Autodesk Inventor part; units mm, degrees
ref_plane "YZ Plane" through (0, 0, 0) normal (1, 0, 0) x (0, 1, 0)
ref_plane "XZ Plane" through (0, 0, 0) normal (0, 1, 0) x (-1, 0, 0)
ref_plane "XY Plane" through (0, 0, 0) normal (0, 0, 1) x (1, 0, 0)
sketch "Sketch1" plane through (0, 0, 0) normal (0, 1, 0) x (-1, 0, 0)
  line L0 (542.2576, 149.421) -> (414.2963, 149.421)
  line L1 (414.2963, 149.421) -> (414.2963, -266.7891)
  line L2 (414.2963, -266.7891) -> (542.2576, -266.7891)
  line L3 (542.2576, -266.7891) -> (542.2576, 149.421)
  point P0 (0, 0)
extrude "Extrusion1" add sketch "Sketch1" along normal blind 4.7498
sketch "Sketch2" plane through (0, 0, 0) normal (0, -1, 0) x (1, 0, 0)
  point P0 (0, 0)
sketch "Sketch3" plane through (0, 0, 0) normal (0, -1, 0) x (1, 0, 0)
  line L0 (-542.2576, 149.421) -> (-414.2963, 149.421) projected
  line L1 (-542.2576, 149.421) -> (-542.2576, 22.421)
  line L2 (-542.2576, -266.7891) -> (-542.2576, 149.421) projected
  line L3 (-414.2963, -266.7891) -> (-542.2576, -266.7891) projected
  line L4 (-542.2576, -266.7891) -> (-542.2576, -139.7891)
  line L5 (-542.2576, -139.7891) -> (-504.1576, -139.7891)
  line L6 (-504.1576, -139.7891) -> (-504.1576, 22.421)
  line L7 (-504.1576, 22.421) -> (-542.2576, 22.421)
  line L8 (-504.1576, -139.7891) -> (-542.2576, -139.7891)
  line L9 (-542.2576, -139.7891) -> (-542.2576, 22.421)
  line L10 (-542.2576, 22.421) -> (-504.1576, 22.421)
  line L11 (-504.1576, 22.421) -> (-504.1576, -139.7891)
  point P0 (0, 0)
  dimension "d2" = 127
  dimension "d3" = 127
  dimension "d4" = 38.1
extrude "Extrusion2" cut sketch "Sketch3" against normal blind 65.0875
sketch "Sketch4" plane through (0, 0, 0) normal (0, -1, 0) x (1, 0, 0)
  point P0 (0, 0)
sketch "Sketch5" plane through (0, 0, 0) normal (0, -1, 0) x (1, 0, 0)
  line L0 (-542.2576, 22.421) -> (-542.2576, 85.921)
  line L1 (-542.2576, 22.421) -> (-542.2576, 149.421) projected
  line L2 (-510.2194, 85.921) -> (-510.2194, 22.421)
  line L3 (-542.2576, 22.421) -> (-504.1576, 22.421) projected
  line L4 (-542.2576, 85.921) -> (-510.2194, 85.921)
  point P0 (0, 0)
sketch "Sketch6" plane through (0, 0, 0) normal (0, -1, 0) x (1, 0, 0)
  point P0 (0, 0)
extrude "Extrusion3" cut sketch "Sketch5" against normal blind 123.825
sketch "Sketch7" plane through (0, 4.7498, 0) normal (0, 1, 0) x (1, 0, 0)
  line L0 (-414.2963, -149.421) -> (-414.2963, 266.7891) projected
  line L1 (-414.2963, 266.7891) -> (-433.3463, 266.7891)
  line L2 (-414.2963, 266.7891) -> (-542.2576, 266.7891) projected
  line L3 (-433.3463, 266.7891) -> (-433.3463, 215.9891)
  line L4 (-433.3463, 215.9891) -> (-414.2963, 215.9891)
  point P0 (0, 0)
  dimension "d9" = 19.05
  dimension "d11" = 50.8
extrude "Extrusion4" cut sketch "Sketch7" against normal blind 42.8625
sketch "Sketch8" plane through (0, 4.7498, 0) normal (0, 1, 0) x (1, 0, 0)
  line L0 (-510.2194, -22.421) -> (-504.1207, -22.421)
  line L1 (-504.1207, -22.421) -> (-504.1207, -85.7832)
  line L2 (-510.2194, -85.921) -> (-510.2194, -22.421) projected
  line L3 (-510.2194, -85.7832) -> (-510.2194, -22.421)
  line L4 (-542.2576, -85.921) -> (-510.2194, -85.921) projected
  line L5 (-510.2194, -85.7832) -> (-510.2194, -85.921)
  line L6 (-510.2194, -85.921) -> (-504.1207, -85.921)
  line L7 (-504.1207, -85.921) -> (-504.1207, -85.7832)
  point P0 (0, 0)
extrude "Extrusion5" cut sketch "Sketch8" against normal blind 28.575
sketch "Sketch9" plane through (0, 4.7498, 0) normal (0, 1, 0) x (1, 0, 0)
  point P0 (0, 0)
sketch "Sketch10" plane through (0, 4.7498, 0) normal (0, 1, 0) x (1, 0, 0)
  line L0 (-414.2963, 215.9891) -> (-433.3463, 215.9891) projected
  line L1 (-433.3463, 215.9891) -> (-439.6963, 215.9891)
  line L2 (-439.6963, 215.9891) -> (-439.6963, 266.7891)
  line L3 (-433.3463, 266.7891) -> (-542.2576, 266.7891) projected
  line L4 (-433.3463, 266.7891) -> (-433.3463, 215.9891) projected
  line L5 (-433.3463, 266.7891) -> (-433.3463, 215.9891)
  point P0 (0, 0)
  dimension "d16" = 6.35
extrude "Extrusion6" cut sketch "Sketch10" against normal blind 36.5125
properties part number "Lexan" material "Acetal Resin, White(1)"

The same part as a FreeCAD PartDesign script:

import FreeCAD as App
import Part
import Sketcher
Q = App.Units.Quantity

doc = App.newDocument("Part")
body = doc.addObject("PartDesign::Body", "Body")

# Sketch on XZ plane
sketch1 = body.newObject("Sketcher::SketchObject", "Sketch")
sketch1.AttachmentSupport = (doc.getObject("XZ_Plane"), [""])
sketch1.MapMode = "FlatFace"
sketch1.addGeometry(Part.LineSegment(App.Vector(-542.2576, -266.7891, 0), App.Vector(-542.2576, 149.421, 0)), False)
sketch1.addGeometry(Part.LineSegment(App.Vector(-542.2576, 149.421, 0), App.Vector(-414.2963, 149.421, 0)), False)
sketch1.addGeometry(Part.LineSegment(App.Vector(-414.2963, 149.421, 0), App.Vector(-414.2963, -266.7891, 0)), False)
sketch1.addGeometry(Part.LineSegment(App.Vector(-414.2963, -266.7891, 0), App.Vector(-542.2576, -266.7891, 0)), False)
sketch1.addConstraint(Sketcher.Constraint("Coincident", 0, 2, 1, 1))
sketch1.addConstraint(Sketcher.Constraint("Coincident", 1, 2, 2, 1))
sketch1.addConstraint(Sketcher.Constraint("Coincident", 2, 2, 3, 1))
sketch1.addConstraint(Sketcher.Constraint("Coincident", 3, 2, 0, 1))
sketch1.addConstraint(Sketcher.Constraint("Vertical", 0))
sketch1.addConstraint(Sketcher.Constraint("Horizontal", 1))
sketch1.addConstraint(Sketcher.Constraint("Vertical", 2))
sketch1.addConstraint(Sketcher.Constraint("Horizontal", 3))
sketch1.addConstraint(Sketcher.Constraint("DistanceX", 1, 1, 1, 2, 127.9613))
sketch1.addConstraint(Sketcher.Constraint("DistanceY", 0, 1, 0, 2, 416.21))
sketch1.addConstraint(Sketcher.Constraint("DistanceY", 2, 2, -1, 1, Q("10.5035 in")))
sketch1.addConstraint(Sketcher.Constraint("DistanceX", 0, 2, -1, 1, 542.2576))
pad1 = body.newObject("PartDesign::Pad", "Pad")
pad1.Profile = sketch1
pad1.Length = Q("0.187 in")
pad1.Reversed = True

# Sketch on XZ plane
sketch2 = body.newObject("Sketcher::SketchObject", "Sketch001")
sketch2.AttachmentSupport = (doc.getObject("XZ_Plane"), [""])
sketch2.MapMode = "FlatFace"
sketch2.addGeometry(Part.LineSegment(App.Vector(-542.2576, 22.421, 0), App.Vector(-542.2576, -139.7891, 0)), False)
sketch2.addGeometry(Part.LineSegment(App.Vector(-542.2576, -139.7891, 0), App.Vector(-504.1576, -139.7891, 0)), False)
sketch2.addGeometry(Part.LineSegment(App.Vector(-504.1576, -139.7891, 0), App.Vector(-504.1576, 22.421, 0)), False)
sketch2.addGeometry(Part.LineSegment(App.Vector(-504.1576, 22.421, 0), App.Vector(-542.2576, 22.421, 0)), False)
sketch2.addConstraint(Sketcher.Constraint("Coincident", 0, 2, 1, 1))
sketch2.addConstraint(Sketcher.Constraint("Coincident", 1, 2, 2, 1))
sketch2.addConstraint(Sketcher.Constraint("Coincident", 2, 2, 3, 1))
sketch2.addConstraint(Sketcher.Constraint("Coincident", 3, 2, 0, 1))
sketch2.addConstraint(Sketcher.Constraint("Vertical", 0))
sketch2.addConstraint(Sketcher.Constraint("Horizontal", 1))
sketch2.addConstraint(Sketcher.Constraint("Vertical", 2))
sketch2.addConstraint(Sketcher.Constraint("Horizontal", 3))
sketch2.addConstraint(Sketcher.Constraint("DistanceX", 1, 1, 1, 2, Q("1.5 in")))
sketch2.addConstraint(Sketcher.Constraint("DistanceY", 0, 2, 0, 1, 162.21))
sketch2.addConstraint(Sketcher.Constraint("DistanceY", 0, 2, -1, 1, Q("5.5035 in")))
sketch2.addConstraint(Sketcher.Constraint("DistanceX", 0, 2, -1, 1, 542.2576))
pocket1 = body.newObject("PartDesign::Pocket", "Pocket")
pocket1.Profile = sketch2
pocket1.Length = Q("2.5625 in")

# Sketch on XZ plane
sketch3 = body.newObject("Sketcher::SketchObject", "Sketch002")
sketch3.AttachmentSupport = (doc.getObject("XZ_Plane"), [""])
sketch3.MapMode = "FlatFace"
sketch3.addGeometry(Part.LineSegment(App.Vector(-542.2576, 85.921, 0), App.Vector(-542.2576, 22.421, 0)), False)
sketch3.addGeometry(Part.LineSegment(App.Vector(-542.2576, 22.421, 0), App.Vector(-510.2194, 22.421, 0)), False)
sketch3.addGeometry(Part.LineSegment(App.Vector(-510.2194, 22.421, 0), App.Vector(-510.2194, 85.921, 0)), False)
sketch3.addGeometry(Part.LineSegment(App.Vector(-510.2194, 85.921, 0), App.Vector(-542.2576, 85.921, 0)), False)
sketch3.addConstraint(Sketcher.Constraint("Coincident", 0, 2, 1, 1))
sketch3.addConstraint(Sketcher.Constraint("Coincident", 1, 2, 2, 1))
sketch3.addConstraint(Sketcher.Constraint("Coincident", 2, 2, 3, 1))
sketch3.addConstraint(Sketcher.Constraint("Coincident", 3, 2, 0, 1))
sketch3.addConstraint(Sketcher.Constraint("Vertical", 0))
sketch3.addConstraint(Sketcher.Constraint("Horizontal", 1))
sketch3.addConstraint(Sketcher.Constraint("Vertical", 2))
sketch3.addConstraint(Sketcher.Constraint("Horizontal", 3))
sketch3.addConstraint(Sketcher.Constraint("DistanceY", 0, 2, 0, 1, Q("2.5 in")))
sketch3.addConstraint(Sketcher.Constraint("DistanceX", 1, 1, 1, 2, 32.0382))
sketch3.addConstraint(Sketcher.Constraint("DistanceX", 0, 2, -1, 1, 542.2576))
sketch3.addConstraint(Sketcher.Constraint("DistanceY", -1, 1, 0, 2, 22.421))
pocket2 = body.newObject("PartDesign::Pocket", "Pocket001")
pocket2.Profile = sketch3
pocket2.Length = Q("4.875 in")

# Sketch on XZ plane
sketch4 = body.newObject("Sketcher::SketchObject", "Sketch003")
sketch4.AttachmentSupport = (doc.getObject("XZ_Plane"), [""])
sketch4.MapMode = "FlatFace"
sketch4.AttachmentOffset = App.Placement(App.Vector(0, 0, -0.187 * 25.4), App.Rotation())
sketch4.addGeometry(Part.LineSegment(App.Vector(-433.3463, -215.9891, 0), App.Vector(-414.2963, -215.9891, 0)), False)
sketch4.addGeometry(Part.LineSegment(App.Vector(-414.2963, -215.9891, 0), App.Vector(-414.2963, -266.7891, 0)), False)
sketch4.addGeometry(Part.LineSegment(App.Vector(-414.2963, -266.7891, 0), App.Vector(-433.3463, -266.7891, 0)), False)
sketch4.addGeometry(Part.LineSegment(App.Vector(-433.3463, -266.7891, 0), App.Vector(-433.3463, -215.9891, 0)), False)
sketch4.addConstraint(Sketcher.Constraint("Coincident", 0, 2, 1, 1))
sketch4.addConstraint(Sketcher.Constraint("Coincident", 1, 2, 2, 1))
sketch4.addConstraint(Sketcher.Constraint("Coincident", 2, 2, 3, 1))
sketch4.addConstraint(Sketcher.Constraint("Coincident", 3, 2, 0, 1))
sketch4.addConstraint(Sketcher.Constraint("Horizontal", 0))
sketch4.addConstraint(Sketcher.Constraint("Vertical", 1))
sketch4.addConstraint(Sketcher.Constraint("Horizontal", 2))
sketch4.addConstraint(Sketcher.Constraint("Vertical", 3))
sketch4.addConstraint(Sketcher.Constraint("DistanceY", 1, 2, 1, 1, Q("2 in")))
sketch4.addConstraint(Sketcher.Constraint("DistanceX", 0, 1, 0, 2, Q("0.75 in")))
sketch4.addConstraint(Sketcher.Constraint("DistanceY", 0, 2, -1, 1, Q("8.5035 in")))
sketch4.addConstraint(Sketcher.Constraint("DistanceX", 0, 2, -1, 1, 414.2963))
pocket3 = body.newObject("PartDesign::Pocket", "Pocket002")
pocket3.Profile = sketch4
pocket3.Length = Q("1.6875 in")
pocket3.Reversed = True

# Sketch on XZ plane
sketch5 = body.newObject("Sketcher::SketchObject", "Sketch004")
sketch5.AttachmentSupport = (doc.getObject("XZ_Plane"), [""])
sketch5.MapMode = "FlatFace"
sketch5.AttachmentOffset = App.Placement(App.Vector(0, 0, -0.187 * 25.4), App.Rotation())
sketch5.addGeometry(Part.LineSegment(App.Vector(-504.1207, 22.421, 0), App.Vector(-510.2194, 22.421, 0)), False)
sketch5.addGeometry(Part.LineSegment(App.Vector(-510.2194, 22.421, 0), App.Vector(-510.2194, 85.921, 0)), False)
sketch5.addGeometry(Part.LineSegment(App.Vector(-510.2194, 85.921, 0), App.Vector(-504.1207, 85.921, 0)), False)
sketch5.addGeometry(Part.LineSegment(App.Vector(-504.1207, 85.921, 0), App.Vector(-504.1207, 22.421, 0)), False)
sketch5.addConstraint(Sketcher.Constraint("Coincident", 0, 2, 1, 1))
sketch5.addConstraint(Sketcher.Constraint("Coincident", 1, 2, 2, 1))
sketch5.addConstraint(Sketcher.Constraint("Coincident", 2, 2, 3, 1))
sketch5.addConstraint(Sketcher.Constraint("Coincident", 3, 2, 0, 1))
sketch5.addConstraint(Sketcher.Constraint("Horizontal", 0))
sketch5.addConstraint(Sketcher.Constraint("Vertical", 1))
sketch5.addConstraint(Sketcher.Constraint("Horizontal", 2))
sketch5.addConstraint(Sketcher.Constraint("Vertical", 3))
sketch5.addConstraint(Sketcher.Constraint("DistanceY", 1, 1, 1, 2, Q("2.5 in")))
sketch5.addConstraint(Sketcher.Constraint("DistanceX", 0, 2, 0, 1, Q("0.2401 in")))
sketch5.addConstraint(Sketcher.Constraint("DistanceX", 0, 2, -1, 1, 510.2194))
sketch5.addConstraint(Sketcher.Constraint("DistanceY", -1, 1, 0, 2, 22.421))
pocket4 = body.newObject("PartDesign::Pocket", "Pocket003")
pocket4.Profile = sketch5
pocket4.Length = Q("1.125 in")
pocket4.Reversed = True

# Sketch on XZ plane
sketch6 = body.newObject("Sketcher::SketchObject", "Sketch005")
sketch6.AttachmentSupport = (doc.getObject("XZ_Plane"), [""])
sketch6.MapMode = "FlatFace"
sketch6.AttachmentOffset = App.Placement(App.Vector(0, 0, -0.187 * 25.4), App.Rotation())
sketch6.addGeometry(Part.LineSegment(App.Vector(-439.6963, -215.9891, 0), App.Vector(-433.3463, -215.9891, 0)), False)
sketch6.addGeometry(Part.LineSegment(App.Vector(-433.3463, -215.9891, 0), App.Vector(-433.3463, -266.7891, 0)), False)
sketch6.addGeometry(Part.LineSegment(App.Vector(-433.3463, -266.7891, 0), App.Vector(-439.6963, -266.7891, 0)), False)
sketch6.addGeometry(Part.LineSegment(App.Vector(-439.6963, -266.7891, 0), App.Vector(-439.6963, -215.9891, 0)), False)
sketch6.addConstraint(Sketcher.Constraint("Coincident", 0, 2, 1, 1))
sketch6.addConstraint(Sketcher.Constraint("Coincident", 1, 2, 2, 1))
sketch6.addConstraint(Sketcher.Constraint("Coincident", 2, 2, 3, 1))
sketch6.addConstraint(Sketcher.Constraint("Coincident", 3, 2, 0, 1))
sketch6.addConstraint(Sketcher.Constraint("Horizontal", 0))
sketch6.addConstraint(Sketcher.Constraint("Vertical", 1))
sketch6.addConstraint(Sketcher.Constraint("Horizontal", 2))
sketch6.addConstraint(Sketcher.Constraint("Vertical", 3))
sketch6.addConstraint(Sketcher.Constraint("DistanceX", 0, 1, 0, 2, Q("0.25 in")))
sketch6.addConstraint(Sketcher.Constraint("DistanceY", 1, 2, 1, 1, Q("2 in")))
sketch6.addConstraint(Sketcher.Constraint("DistanceY", 0, 2, -1, 1, Q("8.5035 in")))
sketch6.addConstraint(Sketcher.Constraint("DistanceX", 0, 2, -1, 1, 433.3463))
pocket5 = body.newObject("PartDesign::Pocket", "Pocket004")
pocket5.Profile = sketch6
pocket5.Length = Q("1.4375 in")
pocket5.Reversed = True

doc.recompute()
